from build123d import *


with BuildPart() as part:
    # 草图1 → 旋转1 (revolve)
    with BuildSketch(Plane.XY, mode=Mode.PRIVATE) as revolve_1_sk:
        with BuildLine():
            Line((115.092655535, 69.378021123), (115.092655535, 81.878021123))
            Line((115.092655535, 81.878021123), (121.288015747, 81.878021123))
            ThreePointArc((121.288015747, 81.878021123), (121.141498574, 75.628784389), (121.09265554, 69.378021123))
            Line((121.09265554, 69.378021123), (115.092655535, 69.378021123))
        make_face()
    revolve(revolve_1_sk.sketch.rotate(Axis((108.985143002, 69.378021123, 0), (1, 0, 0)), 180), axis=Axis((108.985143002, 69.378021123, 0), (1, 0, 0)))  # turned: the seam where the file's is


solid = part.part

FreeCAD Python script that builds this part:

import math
import FreeCAD as App
import Part
import Sketcher
Q = App.Units.Quantity

doc = App.newDocument("Part")
params = doc.addObject("Spreadsheet::Sheet", "Params")
for row, (alias, value) in enumerate([
    ("sketch1_radius", "400.000002 mm"),
    ("sketch1_width", "6 mm"),
    ("sketch1_height", "12.5 mm"),
    ("revolution_angle", "360 deg"),
], start=1):
    params.set(f"A{row}", alias)
    params.set(f"B{row}", "=" + value)
    params.setAlias(f"B{row}", alias)

body = doc.addObject("PartDesign::Body", "Body")

# Sketch on XY plane
sketch1 = doc.addObject("Sketcher::SketchObject", "Sketch")
body.addObject(sketch1)
sketch1.AttachmentSupport = (doc.XY_Plane, [""])
sketch1.MapMode = "FlatFace"
sketch1.addGeometry([
    Part.LineSegment(App.Vector(115, 82, 0), App.Vector(115, 69, 0)),
    Part.LineSegment(App.Vector(115, 69, 0), App.Vector(121, 69, 0)),
    Part.ArcOfCircle(Part.Circle(App.Vector(521, 69, 0), App.Vector(0, 0, 1), 400), math.radians(178.21), math.radians(180)),
    Part.LineSegment(App.Vector(121, 82, 0), App.Vector(115, 82, 0)),
], False)
sketch1.addGeometry(Part.LineSegment(App.Vector(115, 69, 0), App.Vector(521, 69, 0)), True)  # axis
sketch1.addConstraint([
    Sketcher.Constraint("Coincident", 0, 2, 1, 1),
    Sketcher.Constraint("Coincident", 1, 2, 2, 2),
    Sketcher.Constraint("Coincident", 2, 1, 3, 1),
    Sketcher.Constraint("Coincident", 3, 2, 0, 1),
    Sketcher.Constraint("Vertical", 0),
    Sketcher.Constraint("Horizontal", 1),
    Sketcher.Constraint("Horizontal", 3),
    Sketcher.Constraint("Horizontal", 4),
    Sketcher.Constraint("Coincident", 4, 1, 0, 2),
    Sketcher.Constraint("Coincident", 4, 2, 2, 3),
    Sketcher.Constraint("Radius", 2, Q("400.000002 mm")),
    Sketcher.Constraint("DistanceX", 1, 1, 1, 2, Q("6 mm")),
    Sketcher.Constraint("DistanceY", 0, 2, 0, 1, Q("12.5 mm")),
    Sketcher.Constraint("DistanceY", -1, 1, 2, 3, Q("69.378021 mm")),
    Sketcher.Constraint("DistanceX", -1, 1, 2, 3, Q("521.092657 mm")),
])
sketch1.setExpression("Constraints[10]", "Params.sketch1_radius")
sketch1.setExpression("Constraints[11]", "Params.sketch1_width")
sketch1.setExpression("Constraints[12]", "Params.sketch1_height")
revolution = doc.addObject("PartDesign::Revolution", "Revolution")
body.addObject(revolution)
revolution.Profile = sketch1
revolution.ReferenceAxis = (sketch1, ["Axis0"])
revolution.setExpression("Angle", "Params.revolution_angle")

doc.recompute()
